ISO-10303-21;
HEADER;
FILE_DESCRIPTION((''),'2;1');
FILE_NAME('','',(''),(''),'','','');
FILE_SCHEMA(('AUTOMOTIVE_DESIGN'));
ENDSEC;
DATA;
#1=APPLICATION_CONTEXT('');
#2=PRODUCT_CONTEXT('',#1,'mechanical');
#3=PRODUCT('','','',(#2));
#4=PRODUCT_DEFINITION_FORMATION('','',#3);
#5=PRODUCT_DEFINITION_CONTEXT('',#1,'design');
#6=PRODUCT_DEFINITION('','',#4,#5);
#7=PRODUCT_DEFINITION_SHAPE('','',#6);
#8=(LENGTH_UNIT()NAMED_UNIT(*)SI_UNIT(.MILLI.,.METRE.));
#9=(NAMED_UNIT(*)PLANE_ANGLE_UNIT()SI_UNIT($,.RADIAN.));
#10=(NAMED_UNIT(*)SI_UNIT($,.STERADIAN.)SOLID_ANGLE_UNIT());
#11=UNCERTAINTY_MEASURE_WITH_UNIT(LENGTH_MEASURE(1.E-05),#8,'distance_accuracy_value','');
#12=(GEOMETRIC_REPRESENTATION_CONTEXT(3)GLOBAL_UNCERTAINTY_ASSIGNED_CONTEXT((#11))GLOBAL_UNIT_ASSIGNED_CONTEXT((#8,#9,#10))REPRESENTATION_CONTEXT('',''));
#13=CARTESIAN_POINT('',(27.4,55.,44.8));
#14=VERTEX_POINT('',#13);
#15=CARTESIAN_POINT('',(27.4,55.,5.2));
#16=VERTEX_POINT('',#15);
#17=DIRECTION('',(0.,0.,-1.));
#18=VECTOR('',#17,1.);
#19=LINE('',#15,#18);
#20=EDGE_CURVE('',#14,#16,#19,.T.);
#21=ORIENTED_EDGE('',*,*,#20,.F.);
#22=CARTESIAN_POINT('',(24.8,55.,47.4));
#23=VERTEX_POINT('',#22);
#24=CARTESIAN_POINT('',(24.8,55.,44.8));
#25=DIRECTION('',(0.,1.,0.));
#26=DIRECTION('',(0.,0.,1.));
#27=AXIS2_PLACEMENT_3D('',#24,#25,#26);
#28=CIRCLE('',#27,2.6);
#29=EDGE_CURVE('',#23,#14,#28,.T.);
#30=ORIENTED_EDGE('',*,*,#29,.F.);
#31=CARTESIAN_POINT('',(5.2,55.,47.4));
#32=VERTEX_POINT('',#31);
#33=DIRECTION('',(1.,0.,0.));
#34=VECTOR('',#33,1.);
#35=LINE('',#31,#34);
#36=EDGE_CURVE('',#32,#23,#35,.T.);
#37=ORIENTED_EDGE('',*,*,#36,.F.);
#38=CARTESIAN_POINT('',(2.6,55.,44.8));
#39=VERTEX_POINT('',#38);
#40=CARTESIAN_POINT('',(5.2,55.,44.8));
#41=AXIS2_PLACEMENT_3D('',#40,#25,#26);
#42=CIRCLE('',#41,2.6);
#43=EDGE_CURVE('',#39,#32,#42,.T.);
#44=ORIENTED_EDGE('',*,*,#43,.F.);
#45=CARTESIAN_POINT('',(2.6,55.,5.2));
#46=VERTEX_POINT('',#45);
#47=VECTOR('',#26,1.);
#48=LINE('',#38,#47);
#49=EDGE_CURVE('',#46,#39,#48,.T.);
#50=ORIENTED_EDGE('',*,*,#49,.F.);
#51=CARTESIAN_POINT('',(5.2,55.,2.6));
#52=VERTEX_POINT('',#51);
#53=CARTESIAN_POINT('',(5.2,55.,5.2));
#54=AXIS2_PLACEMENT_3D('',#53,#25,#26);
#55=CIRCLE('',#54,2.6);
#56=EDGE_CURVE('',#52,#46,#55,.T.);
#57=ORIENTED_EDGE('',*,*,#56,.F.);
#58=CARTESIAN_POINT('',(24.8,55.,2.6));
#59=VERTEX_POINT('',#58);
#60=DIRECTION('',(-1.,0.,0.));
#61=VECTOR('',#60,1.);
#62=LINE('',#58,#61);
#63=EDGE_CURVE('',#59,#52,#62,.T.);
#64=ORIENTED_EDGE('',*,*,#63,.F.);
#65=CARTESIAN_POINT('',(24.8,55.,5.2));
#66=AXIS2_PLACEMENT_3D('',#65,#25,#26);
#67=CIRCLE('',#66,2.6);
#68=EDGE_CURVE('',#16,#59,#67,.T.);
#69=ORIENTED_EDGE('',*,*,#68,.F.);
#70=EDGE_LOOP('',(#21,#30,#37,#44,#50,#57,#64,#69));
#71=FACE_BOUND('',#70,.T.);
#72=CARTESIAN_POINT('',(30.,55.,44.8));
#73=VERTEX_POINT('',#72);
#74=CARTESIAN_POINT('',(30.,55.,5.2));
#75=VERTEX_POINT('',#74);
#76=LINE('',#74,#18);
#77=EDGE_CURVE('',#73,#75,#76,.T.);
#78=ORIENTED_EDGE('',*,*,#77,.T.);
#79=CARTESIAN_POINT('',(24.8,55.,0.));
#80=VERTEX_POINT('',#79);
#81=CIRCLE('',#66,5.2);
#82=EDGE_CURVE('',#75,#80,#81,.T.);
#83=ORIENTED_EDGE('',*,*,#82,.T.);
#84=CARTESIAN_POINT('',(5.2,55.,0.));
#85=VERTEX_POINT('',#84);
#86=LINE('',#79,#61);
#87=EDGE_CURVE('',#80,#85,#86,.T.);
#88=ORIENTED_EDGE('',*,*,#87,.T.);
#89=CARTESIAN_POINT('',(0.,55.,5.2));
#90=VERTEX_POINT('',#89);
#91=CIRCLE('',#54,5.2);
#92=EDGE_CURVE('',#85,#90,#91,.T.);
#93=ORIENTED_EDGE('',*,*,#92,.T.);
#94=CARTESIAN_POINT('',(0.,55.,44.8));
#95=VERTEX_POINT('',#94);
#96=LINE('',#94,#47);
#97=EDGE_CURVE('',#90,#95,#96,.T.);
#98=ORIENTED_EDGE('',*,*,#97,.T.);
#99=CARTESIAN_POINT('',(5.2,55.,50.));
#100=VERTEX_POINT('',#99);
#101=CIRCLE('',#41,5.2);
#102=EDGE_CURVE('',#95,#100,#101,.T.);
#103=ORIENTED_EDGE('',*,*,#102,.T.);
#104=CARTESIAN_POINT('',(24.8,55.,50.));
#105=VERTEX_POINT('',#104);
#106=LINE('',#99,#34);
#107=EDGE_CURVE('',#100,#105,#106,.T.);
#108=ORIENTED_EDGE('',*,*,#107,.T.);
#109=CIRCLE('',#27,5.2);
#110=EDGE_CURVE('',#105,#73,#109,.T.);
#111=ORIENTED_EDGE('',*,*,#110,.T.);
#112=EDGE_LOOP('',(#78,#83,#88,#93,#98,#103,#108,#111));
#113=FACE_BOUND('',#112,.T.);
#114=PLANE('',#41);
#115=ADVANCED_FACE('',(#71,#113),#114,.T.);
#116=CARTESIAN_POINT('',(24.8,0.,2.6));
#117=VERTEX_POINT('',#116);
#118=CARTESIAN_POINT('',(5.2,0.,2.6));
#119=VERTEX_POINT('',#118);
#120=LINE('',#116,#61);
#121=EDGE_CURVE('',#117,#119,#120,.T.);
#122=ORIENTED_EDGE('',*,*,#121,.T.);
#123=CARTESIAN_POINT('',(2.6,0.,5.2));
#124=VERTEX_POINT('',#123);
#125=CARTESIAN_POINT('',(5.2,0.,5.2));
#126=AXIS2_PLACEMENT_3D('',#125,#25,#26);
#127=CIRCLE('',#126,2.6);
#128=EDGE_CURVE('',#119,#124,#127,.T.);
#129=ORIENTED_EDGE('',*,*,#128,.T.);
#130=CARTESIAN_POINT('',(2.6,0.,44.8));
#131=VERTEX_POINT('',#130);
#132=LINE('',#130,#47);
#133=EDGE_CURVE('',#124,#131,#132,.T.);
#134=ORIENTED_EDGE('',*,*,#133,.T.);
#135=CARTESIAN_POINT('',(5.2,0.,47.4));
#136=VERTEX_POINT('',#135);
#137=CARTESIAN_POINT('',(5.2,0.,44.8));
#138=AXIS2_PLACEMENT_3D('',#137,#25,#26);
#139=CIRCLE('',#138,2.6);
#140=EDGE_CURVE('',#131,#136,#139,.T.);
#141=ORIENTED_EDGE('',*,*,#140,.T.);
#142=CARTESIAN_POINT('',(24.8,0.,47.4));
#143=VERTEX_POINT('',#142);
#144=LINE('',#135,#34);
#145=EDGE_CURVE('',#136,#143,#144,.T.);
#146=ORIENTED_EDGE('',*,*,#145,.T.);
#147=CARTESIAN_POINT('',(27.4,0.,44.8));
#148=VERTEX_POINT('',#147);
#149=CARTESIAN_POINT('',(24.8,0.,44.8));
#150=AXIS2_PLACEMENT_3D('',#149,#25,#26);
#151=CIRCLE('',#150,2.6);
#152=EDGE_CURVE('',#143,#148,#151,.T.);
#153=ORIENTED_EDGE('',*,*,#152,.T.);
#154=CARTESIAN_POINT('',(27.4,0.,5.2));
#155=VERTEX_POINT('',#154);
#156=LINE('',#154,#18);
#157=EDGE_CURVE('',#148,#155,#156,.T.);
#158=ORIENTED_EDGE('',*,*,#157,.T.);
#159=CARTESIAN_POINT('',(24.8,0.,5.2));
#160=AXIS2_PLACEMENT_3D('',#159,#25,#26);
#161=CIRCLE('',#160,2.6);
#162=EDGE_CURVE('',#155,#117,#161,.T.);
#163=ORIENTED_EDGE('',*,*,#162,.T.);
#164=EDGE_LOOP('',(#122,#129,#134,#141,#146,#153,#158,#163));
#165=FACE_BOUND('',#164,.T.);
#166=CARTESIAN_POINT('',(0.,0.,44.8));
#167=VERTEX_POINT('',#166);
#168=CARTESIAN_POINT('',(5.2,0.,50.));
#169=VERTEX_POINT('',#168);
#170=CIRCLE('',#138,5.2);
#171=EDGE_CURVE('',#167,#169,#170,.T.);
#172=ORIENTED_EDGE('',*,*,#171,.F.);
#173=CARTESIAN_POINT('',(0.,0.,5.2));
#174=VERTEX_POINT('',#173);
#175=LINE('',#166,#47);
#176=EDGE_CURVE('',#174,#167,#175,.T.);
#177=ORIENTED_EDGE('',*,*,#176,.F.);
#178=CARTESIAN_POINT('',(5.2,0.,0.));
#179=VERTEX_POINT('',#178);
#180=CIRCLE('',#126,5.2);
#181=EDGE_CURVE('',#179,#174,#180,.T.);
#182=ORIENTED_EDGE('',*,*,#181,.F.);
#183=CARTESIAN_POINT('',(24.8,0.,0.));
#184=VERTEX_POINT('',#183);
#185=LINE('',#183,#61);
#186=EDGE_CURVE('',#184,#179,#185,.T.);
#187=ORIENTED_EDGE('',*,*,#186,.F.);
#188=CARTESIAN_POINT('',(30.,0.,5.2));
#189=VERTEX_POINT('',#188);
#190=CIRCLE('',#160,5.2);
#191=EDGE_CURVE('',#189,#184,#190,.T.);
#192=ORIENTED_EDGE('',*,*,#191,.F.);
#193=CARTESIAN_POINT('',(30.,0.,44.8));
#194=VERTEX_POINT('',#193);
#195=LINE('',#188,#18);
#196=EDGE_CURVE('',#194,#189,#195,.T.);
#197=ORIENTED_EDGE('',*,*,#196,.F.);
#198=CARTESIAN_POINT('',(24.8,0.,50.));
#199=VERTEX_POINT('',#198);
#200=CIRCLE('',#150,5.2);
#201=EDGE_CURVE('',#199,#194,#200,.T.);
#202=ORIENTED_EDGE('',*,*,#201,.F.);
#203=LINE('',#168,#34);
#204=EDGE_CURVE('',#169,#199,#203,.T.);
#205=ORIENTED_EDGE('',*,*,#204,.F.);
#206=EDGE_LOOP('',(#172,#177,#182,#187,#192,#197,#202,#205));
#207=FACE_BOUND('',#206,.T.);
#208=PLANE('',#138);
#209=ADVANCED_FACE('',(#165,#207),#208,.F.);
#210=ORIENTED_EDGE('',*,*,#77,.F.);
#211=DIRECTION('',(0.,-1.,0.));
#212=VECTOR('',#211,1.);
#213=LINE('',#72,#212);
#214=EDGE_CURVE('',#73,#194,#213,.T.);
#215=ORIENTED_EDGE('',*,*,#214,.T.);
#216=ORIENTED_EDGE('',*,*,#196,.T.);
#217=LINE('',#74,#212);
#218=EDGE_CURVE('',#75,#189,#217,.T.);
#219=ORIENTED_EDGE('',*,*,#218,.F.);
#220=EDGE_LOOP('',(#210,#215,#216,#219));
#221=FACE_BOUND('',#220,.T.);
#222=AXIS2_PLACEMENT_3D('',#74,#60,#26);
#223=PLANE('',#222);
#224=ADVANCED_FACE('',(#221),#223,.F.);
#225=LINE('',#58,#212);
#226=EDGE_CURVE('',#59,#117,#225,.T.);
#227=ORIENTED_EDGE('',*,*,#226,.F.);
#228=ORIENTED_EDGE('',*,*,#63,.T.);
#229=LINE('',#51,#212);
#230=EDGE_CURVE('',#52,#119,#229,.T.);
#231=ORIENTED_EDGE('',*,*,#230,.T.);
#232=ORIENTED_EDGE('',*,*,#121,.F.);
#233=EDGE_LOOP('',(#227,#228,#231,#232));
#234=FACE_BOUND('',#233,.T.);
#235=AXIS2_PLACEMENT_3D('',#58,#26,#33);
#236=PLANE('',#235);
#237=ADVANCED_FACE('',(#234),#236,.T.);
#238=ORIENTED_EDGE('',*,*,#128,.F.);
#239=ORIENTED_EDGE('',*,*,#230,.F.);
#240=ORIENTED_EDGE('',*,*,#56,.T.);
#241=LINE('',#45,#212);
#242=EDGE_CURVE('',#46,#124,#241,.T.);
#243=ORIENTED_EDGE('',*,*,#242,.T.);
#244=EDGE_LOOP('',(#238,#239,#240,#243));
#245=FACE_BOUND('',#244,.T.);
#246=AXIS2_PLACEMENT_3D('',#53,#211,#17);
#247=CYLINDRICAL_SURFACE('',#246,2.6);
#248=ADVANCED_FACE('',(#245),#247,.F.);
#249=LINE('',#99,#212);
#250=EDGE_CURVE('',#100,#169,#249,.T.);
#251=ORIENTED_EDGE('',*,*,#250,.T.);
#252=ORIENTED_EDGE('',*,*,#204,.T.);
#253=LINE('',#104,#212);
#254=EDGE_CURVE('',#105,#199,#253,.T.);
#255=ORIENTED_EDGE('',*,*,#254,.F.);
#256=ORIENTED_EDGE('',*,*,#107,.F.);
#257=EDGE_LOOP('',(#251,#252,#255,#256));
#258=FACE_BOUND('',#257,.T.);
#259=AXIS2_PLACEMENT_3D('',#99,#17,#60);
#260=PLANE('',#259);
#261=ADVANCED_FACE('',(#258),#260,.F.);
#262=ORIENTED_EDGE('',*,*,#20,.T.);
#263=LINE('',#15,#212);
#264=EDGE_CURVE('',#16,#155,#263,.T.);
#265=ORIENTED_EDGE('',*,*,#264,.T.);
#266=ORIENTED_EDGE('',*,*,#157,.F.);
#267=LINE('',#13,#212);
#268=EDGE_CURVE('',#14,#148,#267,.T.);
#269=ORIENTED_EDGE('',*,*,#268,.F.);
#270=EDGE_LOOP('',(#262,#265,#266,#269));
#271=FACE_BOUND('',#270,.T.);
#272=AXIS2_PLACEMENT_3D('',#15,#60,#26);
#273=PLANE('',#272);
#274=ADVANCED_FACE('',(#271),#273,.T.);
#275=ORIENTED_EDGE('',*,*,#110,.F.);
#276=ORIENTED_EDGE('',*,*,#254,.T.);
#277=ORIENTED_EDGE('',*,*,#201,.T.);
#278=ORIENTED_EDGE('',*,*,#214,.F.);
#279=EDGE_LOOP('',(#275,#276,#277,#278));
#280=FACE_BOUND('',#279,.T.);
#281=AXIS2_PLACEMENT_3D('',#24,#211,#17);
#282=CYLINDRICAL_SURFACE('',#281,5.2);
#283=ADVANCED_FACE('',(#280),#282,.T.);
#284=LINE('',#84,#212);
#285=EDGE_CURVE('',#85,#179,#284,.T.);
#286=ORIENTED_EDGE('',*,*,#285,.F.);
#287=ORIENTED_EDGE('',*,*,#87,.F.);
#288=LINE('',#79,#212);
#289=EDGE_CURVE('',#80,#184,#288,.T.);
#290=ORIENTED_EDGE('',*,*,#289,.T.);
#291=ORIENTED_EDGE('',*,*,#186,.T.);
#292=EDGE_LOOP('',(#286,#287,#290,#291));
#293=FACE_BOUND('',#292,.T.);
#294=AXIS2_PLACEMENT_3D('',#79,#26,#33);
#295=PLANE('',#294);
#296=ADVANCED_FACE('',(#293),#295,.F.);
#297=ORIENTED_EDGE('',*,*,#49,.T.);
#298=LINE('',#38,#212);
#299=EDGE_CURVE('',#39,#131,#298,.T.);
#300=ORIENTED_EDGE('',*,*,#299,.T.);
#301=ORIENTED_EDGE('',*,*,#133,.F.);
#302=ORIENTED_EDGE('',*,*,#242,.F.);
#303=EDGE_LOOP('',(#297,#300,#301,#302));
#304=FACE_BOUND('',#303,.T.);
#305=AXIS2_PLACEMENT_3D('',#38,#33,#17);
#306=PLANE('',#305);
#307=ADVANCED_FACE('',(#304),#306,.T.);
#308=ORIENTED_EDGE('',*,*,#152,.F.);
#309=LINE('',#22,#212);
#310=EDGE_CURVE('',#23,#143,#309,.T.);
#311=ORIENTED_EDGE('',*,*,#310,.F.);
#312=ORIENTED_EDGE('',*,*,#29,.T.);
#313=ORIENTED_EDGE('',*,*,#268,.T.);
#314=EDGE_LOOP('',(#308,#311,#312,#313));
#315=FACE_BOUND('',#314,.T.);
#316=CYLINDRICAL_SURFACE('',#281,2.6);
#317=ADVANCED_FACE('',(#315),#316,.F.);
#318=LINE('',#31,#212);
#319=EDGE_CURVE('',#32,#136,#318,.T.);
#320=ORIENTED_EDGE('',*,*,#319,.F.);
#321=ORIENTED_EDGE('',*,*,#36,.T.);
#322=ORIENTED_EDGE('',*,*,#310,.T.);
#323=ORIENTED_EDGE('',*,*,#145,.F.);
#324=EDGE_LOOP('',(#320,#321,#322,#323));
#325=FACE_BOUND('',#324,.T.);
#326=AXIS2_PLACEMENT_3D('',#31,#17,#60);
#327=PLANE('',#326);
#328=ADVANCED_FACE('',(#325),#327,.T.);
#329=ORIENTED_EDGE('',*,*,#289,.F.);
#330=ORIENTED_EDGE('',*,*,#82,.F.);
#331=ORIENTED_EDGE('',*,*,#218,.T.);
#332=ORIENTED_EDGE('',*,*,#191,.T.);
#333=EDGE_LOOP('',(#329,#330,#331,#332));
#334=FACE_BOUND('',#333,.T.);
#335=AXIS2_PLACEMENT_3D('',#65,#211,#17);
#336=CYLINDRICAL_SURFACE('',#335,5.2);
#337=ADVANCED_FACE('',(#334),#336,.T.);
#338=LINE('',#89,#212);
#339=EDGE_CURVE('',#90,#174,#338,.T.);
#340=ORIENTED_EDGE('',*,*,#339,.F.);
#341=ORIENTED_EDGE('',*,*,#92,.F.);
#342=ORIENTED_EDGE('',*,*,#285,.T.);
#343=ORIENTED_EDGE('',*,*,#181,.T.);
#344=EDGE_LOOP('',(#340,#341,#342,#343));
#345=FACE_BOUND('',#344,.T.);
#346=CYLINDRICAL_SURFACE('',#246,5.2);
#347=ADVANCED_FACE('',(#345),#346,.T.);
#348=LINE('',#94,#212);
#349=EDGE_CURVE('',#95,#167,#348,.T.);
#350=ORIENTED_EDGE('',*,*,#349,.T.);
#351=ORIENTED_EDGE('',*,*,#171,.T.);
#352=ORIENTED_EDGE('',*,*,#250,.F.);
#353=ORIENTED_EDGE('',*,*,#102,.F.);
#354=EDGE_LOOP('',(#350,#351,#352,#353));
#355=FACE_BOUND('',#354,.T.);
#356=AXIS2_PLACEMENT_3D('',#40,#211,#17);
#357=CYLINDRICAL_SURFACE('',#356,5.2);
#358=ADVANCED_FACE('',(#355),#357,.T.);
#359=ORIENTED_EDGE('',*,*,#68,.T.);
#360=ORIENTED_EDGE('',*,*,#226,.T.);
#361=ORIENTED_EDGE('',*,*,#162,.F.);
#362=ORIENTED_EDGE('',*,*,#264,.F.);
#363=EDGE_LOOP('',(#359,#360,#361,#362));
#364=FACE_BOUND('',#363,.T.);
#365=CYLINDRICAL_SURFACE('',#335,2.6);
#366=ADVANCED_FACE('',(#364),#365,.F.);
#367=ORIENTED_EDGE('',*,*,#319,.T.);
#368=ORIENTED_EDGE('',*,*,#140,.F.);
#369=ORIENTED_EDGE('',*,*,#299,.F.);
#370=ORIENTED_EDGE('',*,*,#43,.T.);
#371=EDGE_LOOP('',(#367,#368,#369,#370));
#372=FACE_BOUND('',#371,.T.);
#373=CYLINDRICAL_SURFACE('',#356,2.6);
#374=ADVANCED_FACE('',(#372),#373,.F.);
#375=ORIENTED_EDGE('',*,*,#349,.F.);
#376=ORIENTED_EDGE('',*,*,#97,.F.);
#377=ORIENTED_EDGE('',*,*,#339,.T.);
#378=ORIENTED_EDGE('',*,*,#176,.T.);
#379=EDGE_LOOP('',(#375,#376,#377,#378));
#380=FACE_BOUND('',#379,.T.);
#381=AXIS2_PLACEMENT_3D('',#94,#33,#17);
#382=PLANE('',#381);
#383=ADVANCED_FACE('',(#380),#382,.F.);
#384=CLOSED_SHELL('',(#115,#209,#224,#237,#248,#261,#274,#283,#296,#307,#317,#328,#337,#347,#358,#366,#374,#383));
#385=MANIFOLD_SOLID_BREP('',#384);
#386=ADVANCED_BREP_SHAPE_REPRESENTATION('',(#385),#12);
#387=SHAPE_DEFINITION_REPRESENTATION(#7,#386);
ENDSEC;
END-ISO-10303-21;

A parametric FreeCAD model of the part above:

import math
import FreeCAD as App
import Part
import Sketcher

doc = App.newDocument("Part")
body = doc.addObject("PartDesign::Body", "Body")

# Sketch on XZ plane
sketch1 = body.newObject("Sketcher::SketchObject", "Sketch")
sketch1.AttachmentSupport = (doc.getObject("XZ_Plane"), [""])
sketch1.MapMode = "FlatFace"
sketch1.addGeometry([
    Part.LineSegment(App.Vector(24.8, 0, 0), App.Vector(5.2, 0, 0)),  # 0
    Part.ArcOfCircle(Part.Circle(App.Vector(5.2, 5.2, 0), App.Vector(0, 0, 1), 5.2), math.radians(-180), math.radians(-90)),  # 1
    Part.LineSegment(App.Vector(0, 5.2, 0), App.Vector(0, 44.8, 0)),  # 2
    Part.ArcOfCircle(Part.Circle(App.Vector(5.2, 44.8, 0), App.Vector(0, 0, 1), 5.2), math.radians(90), math.radians(180)),  # 3
    Part.LineSegment(App.Vector(5.2, 50, 0), App.Vector(24.8, 50, 0)),  # 4
    Part.ArcOfCircle(Part.Circle(App.Vector(24.8, 44.8, 0), App.Vector(0, 0, 1), 5.2), math.radians(0), math.radians(90)),  # 5
    Part.LineSegment(App.Vector(30, 44.8, 0), App.Vector(30, 5.2, 0)),  # 6
    Part.ArcOfCircle(Part.Circle(App.Vector(24.8, 5.2, 0), App.Vector(0, 0, 1), 5.2), math.radians(-90), math.radians(0)),  # 7
    Part.LineSegment(App.Vector(5.2, 2.6, 0), App.Vector(24.8, 2.6, 0)),  # 8
    Part.ArcOfCircle(Part.Circle(App.Vector(24.8, 5.2, 0), App.Vector(0, 0, 1), 2.6), math.radians(-90), math.radians(0)),  # 9
    Part.LineSegment(App.Vector(27.4, 5.2, 0), App.Vector(27.4, 44.8, 0)),  # 10
    Part.ArcOfCircle(Part.Circle(App.Vector(24.8, 44.8, 0), App.Vector(0, 0, 1), 2.6), math.radians(0), math.radians(90)),  # 11
    Part.LineSegment(App.Vector(24.8, 47.4, 0), App.Vector(5.2, 47.4, 0)),  # 12
    Part.ArcOfCircle(Part.Circle(App.Vector(5.2, 44.8, 0), App.Vector(0, 0, 1), 2.6), math.radians(90), math.radians(180)),  # 13
    Part.LineSegment(App.Vector(2.6, 44.8, 0), App.Vector(2.6, 5.2, 0)),  # 14
    Part.ArcOfCircle(Part.Circle(App.Vector(5.2, 5.2, 0), App.Vector(0, 0, 1), 2.6), math.radians(180), math.radians(270)),  # 15
], False)
sketch1.addConstraint([
    Sketcher.Constraint("Tangent", 0, 2, 1, 2),
    Sketcher.Constraint("Tangent", 1, 1, 2, 1),
    Sketcher.Constraint("Tangent", 2, 2, 3, 2),
    Sketcher.Constraint("Tangent", 3, 1, 4, 1),
    Sketcher.Constraint("Tangent", 4, 2, 5, 2),
    Sketcher.Constraint("Tangent", 5, 1, 6, 1),
    Sketcher.Constraint("Tangent", 6, 2, 7, 2),
    Sketcher.Constraint("Tangent", 7, 1, 0, 1),
    Sketcher.Constraint("Tangent", 8, 2, 9, 1),
    Sketcher.Constraint("Tangent", 9, 2, 10, 1),
    Sketcher.Constraint("Tangent", 10, 2, 11, 1),
    Sketcher.Constraint("Tangent", 11, 2, 12, 1),
    Sketcher.Constraint("Tangent", 12, 2, 13, 1),
    Sketcher.Constraint("Tangent", 13, 2, 14, 1),
    Sketcher.Constraint("Tangent", 14, 2, 15, 1),
    Sketcher.Constraint("Tangent", 15, 2, 8, 1),
    Sketcher.Constraint("Horizontal", 0),
    Sketcher.Constraint("Vertical", 2),
    Sketcher.Constraint("Horizontal", 4),
    Sketcher.Constraint("Vertical", 6),
    Sketcher.Constraint("Horizontal", 8),
    Sketcher.Constraint("Vertical", 10),
    Sketcher.Constraint("Horizontal", 12),
    Sketcher.Constraint("Vertical", 14),
    Sketcher.Constraint("Coincident", 9, 3, 7, 3),
    Sketcher.Constraint("Coincident", 11, 3, 5, 3),
    Sketcher.Constraint("Coincident", 13, 3, 3, 3),
    Sketcher.Constraint("Equal", 1, 3),
    Sketcher.Constraint("Equal", 3, 5),
    Sketcher.Constraint("Equal", 5, 7),
    Sketcher.Constraint("Equal", 13, 15),
    Sketcher.Constraint("PointOnObject", 0, 2, -1),
    Sketcher.Constraint("PointOnObject", 1, 1, -2),
    Sketcher.Constraint("Radius", 1, 5.2),
    Sketcher.Constraint("Radius", 9, 2.6),
    Sketcher.Constraint("DistanceX", 0, 2, 0, 1, 19.6),
    Sketcher.Constraint("DistanceY", 2, 1, 2, 2, 39.6),
])
pad1 = body.newObject("PartDesign::Pad", "Pad")
pad1.Profile = sketch1
pad1.Length = 55
pad1.Reversed = True

doc.recompute()
